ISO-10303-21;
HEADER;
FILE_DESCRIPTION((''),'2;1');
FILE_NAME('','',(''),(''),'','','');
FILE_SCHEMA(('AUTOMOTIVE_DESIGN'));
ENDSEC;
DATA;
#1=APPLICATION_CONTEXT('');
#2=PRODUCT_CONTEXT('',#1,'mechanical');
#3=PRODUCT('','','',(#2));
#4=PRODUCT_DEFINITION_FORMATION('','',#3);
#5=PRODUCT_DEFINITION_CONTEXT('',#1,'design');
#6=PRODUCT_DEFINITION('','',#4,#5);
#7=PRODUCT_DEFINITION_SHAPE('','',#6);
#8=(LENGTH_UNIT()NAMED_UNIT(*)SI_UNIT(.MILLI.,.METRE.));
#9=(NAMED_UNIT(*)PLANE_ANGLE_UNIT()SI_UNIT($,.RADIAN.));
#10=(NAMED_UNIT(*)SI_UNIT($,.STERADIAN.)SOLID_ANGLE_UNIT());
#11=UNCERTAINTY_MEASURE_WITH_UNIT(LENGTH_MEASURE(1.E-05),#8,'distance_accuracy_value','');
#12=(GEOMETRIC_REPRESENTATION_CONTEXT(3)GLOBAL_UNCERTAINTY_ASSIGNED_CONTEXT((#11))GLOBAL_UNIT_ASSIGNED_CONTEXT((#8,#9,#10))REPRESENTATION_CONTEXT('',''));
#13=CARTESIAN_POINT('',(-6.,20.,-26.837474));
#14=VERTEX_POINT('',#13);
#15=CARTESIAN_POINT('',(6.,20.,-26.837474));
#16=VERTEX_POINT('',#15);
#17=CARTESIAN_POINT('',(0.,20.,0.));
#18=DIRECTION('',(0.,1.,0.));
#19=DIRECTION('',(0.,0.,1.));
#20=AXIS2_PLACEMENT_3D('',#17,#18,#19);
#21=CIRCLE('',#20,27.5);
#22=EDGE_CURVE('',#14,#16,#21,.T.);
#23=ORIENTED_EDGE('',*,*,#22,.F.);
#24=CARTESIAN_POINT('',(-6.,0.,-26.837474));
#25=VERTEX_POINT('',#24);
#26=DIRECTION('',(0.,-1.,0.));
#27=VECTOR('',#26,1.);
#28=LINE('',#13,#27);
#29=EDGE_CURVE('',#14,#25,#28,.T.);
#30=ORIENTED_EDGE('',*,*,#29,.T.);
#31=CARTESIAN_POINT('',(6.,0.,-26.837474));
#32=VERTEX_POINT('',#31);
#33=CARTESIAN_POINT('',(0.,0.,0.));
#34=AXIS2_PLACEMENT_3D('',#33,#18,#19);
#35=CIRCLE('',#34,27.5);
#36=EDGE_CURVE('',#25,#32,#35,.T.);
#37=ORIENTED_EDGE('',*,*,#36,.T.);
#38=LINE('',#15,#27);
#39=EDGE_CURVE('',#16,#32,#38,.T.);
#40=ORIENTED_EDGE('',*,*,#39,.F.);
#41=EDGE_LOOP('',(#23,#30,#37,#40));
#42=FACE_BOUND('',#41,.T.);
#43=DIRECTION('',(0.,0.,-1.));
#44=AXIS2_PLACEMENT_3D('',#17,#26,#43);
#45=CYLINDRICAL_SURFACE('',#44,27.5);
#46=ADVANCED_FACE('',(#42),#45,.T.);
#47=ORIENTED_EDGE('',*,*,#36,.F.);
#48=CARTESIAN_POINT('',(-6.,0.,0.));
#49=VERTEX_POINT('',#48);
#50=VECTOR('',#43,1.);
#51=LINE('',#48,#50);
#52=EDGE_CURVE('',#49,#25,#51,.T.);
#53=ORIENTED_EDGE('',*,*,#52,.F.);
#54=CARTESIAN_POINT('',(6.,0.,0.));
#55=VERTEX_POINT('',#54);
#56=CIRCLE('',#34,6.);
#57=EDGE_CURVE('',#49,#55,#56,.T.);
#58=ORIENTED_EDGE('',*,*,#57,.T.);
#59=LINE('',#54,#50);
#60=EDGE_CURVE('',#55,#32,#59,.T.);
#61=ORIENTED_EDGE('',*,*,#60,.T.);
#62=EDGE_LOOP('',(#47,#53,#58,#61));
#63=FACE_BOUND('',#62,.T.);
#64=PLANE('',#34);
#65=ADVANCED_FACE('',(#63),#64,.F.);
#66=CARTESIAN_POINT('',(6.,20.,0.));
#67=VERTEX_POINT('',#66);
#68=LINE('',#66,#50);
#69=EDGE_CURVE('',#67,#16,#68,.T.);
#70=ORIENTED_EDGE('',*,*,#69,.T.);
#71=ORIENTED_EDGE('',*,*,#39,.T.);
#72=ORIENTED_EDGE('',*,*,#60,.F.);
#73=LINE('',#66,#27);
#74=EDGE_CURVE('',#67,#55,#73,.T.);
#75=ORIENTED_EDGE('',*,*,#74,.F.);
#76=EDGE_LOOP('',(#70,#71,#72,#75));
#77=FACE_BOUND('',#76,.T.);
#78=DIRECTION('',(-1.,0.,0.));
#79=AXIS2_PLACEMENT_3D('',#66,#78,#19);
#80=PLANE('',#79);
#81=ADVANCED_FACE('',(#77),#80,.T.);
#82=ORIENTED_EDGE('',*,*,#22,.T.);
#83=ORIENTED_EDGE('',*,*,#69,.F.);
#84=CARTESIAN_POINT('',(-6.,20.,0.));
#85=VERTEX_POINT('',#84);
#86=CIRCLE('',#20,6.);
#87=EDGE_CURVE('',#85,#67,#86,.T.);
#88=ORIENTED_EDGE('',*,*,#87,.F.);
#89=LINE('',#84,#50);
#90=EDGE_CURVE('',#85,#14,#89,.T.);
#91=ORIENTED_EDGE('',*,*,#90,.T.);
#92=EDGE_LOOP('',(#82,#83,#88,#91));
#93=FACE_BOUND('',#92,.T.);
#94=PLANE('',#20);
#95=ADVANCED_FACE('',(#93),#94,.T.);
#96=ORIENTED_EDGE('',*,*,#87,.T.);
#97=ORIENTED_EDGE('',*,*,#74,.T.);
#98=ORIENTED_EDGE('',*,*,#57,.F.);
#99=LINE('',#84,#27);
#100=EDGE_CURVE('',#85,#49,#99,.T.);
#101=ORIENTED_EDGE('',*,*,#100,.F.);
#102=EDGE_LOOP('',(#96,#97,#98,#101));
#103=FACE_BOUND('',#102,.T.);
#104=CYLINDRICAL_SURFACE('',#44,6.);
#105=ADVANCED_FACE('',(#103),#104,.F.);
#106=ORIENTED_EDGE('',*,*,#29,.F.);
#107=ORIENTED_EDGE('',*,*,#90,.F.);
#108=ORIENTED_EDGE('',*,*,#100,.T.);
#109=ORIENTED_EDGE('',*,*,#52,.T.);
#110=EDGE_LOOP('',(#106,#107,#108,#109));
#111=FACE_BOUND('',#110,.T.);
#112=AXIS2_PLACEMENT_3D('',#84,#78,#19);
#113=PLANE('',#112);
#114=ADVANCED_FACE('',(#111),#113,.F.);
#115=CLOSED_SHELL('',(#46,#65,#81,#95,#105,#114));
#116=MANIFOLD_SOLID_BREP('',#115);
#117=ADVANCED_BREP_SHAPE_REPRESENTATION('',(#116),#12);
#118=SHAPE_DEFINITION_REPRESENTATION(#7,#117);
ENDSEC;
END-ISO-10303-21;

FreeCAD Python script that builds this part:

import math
import FreeCAD as App
import Part
import Sketcher
from FreeCAD import Vector
Q = App.Units.Quantity

doc = App.newDocument("Part")
body = doc.addObject("PartDesign::Body", "Body")

# Sketch on XZ plane
sketch1 = body.newObject("Sketcher::SketchObject", "Sketch")
sketch1.AttachmentSupport = (doc.getObject("XZ_Plane"), [""])
sketch1.MapMode = "FlatFace"
sketch1.addGeometry(Part.ArcOfCircle(Part.Circle(Vector(0, 0, 0), Vector(0, 0, 1), 6), math.radians(0), math.radians(180)), False)
sketch1.addGeometry(Part.LineSegment(Vector(-6, 0, 0), Vector(-6, -27, 0)), False)
sketch1.addGeometry(Part.ArcOfCircle(Part.Circle(Vector(0, 0, 0), Vector(0, 0, 1), 28), math.radians(0), math.radians(257)), False)
sketch1.addGeometry(Part.ArcOfCircle(Part.Circle(Vector(0, 0, 0), Vector(0, 0, 1), 28), math.radians(-77), math.radians(0)), False)
sketch1.addGeometry(Part.LineSegment(Vector(6, -27, 0), Vector(6, 0, 0)), False)
sketch1.addConstraint(Sketcher.Constraint("Tangent", 0, 2, 1, 1))
sketch1.addConstraint(Sketcher.Constraint("Coincident", 1, 2, 2, 2))
sketch1.addConstraint(Sketcher.Constraint("Tangent", 2, 1, 3, 2))
sketch1.addConstraint(Sketcher.Constraint("Coincident", 3, 1, 4, 1))
sketch1.addConstraint(Sketcher.Constraint("Tangent", 4, 2, 0, 1))
sketch1.addConstraint(Sketcher.Constraint("Vertical", 1))
sketch1.addConstraint(Sketcher.Constraint("Vertical", 4))
sketch1.addConstraint(Sketcher.Constraint("Coincident", 0, 3, -1, 1))
sketch1.addConstraint(Sketcher.Constraint("Coincident", 2, 3, -1, 1))
sketch1.addConstraint(Sketcher.Constraint("Equal", 2, 3))
sketch1.addConstraint(Sketcher.Constraint("PointOnObject", 2, 1, -1))
sketch1.addConstraint(Sketcher.Constraint("Radius", 0, Q("6 mm")))
sketch1.addConstraint(Sketcher.Constraint("Radius", 2, Q("27.5 mm")))
pad1 = body.newObject("PartDesign::Pad", "Pad")
pad1.Profile = sketch1
pad1.Length = 20
pad1.Reversed = True

doc.recompute()
